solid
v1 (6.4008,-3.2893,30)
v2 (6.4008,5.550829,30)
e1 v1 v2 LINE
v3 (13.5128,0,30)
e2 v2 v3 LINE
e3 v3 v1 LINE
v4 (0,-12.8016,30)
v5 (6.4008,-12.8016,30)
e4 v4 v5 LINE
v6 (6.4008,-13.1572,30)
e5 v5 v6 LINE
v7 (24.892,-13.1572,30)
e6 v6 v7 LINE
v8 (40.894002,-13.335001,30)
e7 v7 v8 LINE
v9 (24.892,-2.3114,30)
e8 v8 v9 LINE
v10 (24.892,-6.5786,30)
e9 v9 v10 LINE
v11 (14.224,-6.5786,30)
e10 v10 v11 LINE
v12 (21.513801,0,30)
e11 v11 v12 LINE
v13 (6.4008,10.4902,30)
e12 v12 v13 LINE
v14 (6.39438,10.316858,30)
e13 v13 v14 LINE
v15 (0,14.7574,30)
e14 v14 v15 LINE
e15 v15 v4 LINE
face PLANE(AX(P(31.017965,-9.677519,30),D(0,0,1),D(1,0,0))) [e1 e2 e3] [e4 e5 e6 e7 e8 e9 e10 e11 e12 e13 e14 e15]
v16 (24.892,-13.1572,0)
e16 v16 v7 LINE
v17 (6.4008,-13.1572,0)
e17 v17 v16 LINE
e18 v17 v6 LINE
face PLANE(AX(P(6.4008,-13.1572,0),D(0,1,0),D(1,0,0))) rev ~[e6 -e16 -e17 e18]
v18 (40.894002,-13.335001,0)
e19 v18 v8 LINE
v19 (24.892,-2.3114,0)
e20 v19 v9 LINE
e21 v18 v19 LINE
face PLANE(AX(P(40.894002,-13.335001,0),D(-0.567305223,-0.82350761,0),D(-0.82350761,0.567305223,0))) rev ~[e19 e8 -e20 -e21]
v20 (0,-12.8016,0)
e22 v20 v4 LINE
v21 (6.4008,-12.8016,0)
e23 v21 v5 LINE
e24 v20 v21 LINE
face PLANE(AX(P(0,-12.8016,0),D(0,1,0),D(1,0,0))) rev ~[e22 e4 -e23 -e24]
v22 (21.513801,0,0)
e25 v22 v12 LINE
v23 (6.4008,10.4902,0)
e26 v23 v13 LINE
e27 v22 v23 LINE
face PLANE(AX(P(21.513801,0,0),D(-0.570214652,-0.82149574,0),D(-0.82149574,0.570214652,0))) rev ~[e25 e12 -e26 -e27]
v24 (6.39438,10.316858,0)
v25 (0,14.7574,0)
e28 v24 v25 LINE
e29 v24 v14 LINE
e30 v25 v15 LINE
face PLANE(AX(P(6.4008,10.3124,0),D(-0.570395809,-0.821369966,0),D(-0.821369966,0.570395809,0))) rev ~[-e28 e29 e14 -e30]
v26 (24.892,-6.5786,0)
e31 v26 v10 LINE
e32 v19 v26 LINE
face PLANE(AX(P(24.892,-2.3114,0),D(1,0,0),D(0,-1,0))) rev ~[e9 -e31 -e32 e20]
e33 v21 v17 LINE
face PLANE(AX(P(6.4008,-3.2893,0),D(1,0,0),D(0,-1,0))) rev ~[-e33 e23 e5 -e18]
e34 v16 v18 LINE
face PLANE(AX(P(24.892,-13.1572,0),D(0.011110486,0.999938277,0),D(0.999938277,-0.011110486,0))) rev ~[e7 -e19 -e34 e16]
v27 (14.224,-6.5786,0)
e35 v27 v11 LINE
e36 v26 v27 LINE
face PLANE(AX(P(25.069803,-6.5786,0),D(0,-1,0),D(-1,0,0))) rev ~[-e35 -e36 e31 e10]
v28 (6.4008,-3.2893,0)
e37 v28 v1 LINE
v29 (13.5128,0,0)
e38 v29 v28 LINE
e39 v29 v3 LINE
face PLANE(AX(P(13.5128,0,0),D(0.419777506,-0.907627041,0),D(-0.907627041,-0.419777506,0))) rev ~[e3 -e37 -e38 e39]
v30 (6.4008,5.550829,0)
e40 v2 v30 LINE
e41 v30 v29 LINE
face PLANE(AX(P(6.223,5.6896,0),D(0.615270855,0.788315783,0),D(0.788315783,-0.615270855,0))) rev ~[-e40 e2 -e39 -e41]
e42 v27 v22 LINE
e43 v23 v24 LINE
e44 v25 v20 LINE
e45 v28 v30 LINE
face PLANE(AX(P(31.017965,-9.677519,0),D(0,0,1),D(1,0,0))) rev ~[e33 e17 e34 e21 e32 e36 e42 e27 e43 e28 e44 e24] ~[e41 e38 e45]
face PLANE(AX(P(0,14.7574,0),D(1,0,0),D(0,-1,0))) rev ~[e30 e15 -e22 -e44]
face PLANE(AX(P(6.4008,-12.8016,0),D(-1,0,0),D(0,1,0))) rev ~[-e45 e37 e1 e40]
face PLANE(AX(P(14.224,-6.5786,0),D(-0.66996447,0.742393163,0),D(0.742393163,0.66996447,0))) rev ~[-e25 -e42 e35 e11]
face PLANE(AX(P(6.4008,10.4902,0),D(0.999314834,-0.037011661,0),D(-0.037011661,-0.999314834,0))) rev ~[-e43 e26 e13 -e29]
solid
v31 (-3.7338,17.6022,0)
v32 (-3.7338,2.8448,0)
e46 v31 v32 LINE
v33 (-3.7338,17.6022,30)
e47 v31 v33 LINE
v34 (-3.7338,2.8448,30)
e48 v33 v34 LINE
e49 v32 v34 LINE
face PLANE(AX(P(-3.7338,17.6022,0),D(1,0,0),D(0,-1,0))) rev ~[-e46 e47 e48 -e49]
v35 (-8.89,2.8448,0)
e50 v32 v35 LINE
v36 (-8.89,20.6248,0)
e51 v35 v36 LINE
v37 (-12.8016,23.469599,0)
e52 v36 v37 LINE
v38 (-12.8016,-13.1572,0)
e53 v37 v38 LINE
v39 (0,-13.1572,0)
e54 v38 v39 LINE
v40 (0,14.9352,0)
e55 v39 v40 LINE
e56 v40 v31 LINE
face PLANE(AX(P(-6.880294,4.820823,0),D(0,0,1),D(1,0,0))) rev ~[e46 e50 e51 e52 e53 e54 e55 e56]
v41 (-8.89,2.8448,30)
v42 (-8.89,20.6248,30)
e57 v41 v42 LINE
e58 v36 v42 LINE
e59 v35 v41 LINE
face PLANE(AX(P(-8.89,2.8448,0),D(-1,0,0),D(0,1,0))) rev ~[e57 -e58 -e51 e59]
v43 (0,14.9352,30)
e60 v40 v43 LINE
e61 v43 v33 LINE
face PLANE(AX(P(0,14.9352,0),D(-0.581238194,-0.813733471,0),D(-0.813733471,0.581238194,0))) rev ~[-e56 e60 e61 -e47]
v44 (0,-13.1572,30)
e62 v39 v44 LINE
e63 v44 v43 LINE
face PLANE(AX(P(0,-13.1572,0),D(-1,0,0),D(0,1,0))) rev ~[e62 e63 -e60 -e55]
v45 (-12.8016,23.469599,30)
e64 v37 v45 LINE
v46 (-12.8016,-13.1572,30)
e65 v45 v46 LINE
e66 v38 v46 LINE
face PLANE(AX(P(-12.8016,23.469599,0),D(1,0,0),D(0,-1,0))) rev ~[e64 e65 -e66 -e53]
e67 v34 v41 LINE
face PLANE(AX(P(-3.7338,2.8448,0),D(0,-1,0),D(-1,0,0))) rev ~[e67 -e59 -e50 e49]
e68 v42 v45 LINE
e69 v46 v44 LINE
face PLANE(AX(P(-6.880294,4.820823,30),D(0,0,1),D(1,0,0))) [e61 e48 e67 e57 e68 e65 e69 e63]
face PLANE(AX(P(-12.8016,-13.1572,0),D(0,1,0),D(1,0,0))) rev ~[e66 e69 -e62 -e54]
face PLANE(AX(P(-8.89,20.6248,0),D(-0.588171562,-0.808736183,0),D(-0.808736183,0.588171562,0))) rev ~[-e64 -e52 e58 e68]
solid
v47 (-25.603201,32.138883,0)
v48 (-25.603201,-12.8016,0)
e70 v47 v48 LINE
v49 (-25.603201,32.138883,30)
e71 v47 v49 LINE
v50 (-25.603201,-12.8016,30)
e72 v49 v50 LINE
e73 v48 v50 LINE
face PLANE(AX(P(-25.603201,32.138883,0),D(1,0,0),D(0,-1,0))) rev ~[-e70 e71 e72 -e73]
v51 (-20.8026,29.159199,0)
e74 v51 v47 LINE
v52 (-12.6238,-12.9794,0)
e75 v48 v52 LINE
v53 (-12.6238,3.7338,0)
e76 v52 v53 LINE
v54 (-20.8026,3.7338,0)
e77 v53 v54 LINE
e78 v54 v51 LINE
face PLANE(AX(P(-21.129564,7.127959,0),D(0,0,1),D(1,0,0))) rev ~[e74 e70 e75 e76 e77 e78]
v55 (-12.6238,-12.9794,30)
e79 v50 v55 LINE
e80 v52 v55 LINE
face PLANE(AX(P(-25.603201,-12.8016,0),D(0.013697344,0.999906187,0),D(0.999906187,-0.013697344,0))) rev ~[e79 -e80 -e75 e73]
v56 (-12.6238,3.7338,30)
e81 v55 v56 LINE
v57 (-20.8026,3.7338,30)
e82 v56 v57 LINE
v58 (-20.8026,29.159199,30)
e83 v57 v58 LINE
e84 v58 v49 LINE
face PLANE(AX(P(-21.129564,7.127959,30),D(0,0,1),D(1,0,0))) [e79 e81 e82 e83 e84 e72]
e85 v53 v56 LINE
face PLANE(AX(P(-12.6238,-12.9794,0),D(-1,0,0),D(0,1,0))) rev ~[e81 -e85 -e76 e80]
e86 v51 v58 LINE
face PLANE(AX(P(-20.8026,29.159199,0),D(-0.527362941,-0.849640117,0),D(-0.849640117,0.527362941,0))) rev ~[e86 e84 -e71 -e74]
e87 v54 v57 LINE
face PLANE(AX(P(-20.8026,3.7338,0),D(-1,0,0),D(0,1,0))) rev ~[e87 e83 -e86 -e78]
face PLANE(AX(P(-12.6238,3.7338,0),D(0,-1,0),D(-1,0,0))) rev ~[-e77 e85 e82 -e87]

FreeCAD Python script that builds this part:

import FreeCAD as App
import Part
import Sketcher

V = App.Vector
Q = App.Units.Quantity

doc = App.newDocument("Part")
body = doc.addObject("PartDesign::Body", "Body")

# Sketch on XY plane
sketch1 = body.newObject("Sketcher::SketchObject", "Sketch")
sketch1.AttachmentSupport = (doc.getObject("XY_Plane"), [""])
sketch1.MapMode = "FlatFace"
sketch1.addGeometry(Part.LineSegment(V(-21, 29, 0), V(-26, 32, 0)), False)
sketch1.addGeometry(Part.LineSegment(V(-26, 32, 0), V(-26, -13, 0)), False)
sketch1.addGeometry(Part.LineSegment(V(-26, -13, 0), V(-13, -13, 0)), False)
sketch1.addGeometry(Part.LineSegment(V(-13, -13, 0), V(-13, 4, 0)), False)
sketch1.addGeometry(Part.LineSegment(V(-13, 4, 0), V(-21, 4, 0)), False)
sketch1.addGeometry(Part.LineSegment(V(-21, 4, 0), V(-21, 29, 0)), False)
sketch1.addConstraint(Sketcher.Constraint("Coincident", 0, 2, 1, 1))
sketch1.addConstraint(Sketcher.Constraint("Coincident", 1, 2, 2, 1))
sketch1.addConstraint(Sketcher.Constraint("Coincident", 2, 2, 3, 1))
sketch1.addConstraint(Sketcher.Constraint("Coincident", 3, 2, 4, 1))
sketch1.addConstraint(Sketcher.Constraint("Coincident", 4, 2, 5, 1))
sketch1.addConstraint(Sketcher.Constraint("Coincident", 5, 2, 0, 1))
sketch1.addConstraint(Sketcher.Constraint("Vertical", 1))
sketch1.addConstraint(Sketcher.Constraint("Vertical", 3))
sketch1.addConstraint(Sketcher.Constraint("Horizontal", 4))
sketch1.addConstraint(Sketcher.Constraint("Vertical", 5))
sketch1.addConstraint(Sketcher.Constraint("DistanceX", 4, 2, 4, 1, Q("0.322 in")))
sketch1.addConstraint(Sketcher.Constraint("DistanceY", 3, 1, 3, 2, Q("0.658 in")))
sketch1.addConstraint(Sketcher.Constraint("DistanceY", 5, 1, 5, 2, Q("1.001 in")))
sketch1.addConstraint(Sketcher.Constraint("DistanceX", 0, 2, -1, 1, Q("1.008 in")))
sketch1.addConstraint(Sketcher.Constraint("DistanceY", 1, 2, -1, 1, Q("0.504 in")))
sketch1.addConstraint(Sketcher.Constraint("DistanceX", 2, 2, -1, 1, Q("0.497 in")))
sketch1.addConstraint(Sketcher.Constraint("DistanceY", 2, 2, -1, 1, Q("0.511 in")))
sketch1.addConstraint(Sketcher.Constraint("Distance", 0, 5.650158))
pad1 = body.newObject("PartDesign::Pad", "Pad")
pad1.Profile = sketch1
pad1.Length = 30
body2 = doc.addObject("PartDesign::Body", "Body001")

# Sketch on XY plane
sketch2 = body2.newObject("Sketcher::SketchObject", "Sketch001")
sketch2.AttachmentSupport = (doc.getObject("XY_Plane001"), [""])
sketch2.MapMode = "FlatFace"
sketch2.addGeometry(Part.LineSegment(V(6, 10, 0), V(0, 15, 0)), False)
sketch2.addGeometry(Part.LineSegment(V(0, 15, 0), V(0, -13, 0)), False)
sketch2.addGeometry(Part.LineSegment(V(0, -13, 0), V(6, -13, 0)), False)
sketch2.addGeometry(Part.LineSegment(V(6, -13, 0), V(6, 10, 0)), False)
sketch2.addConstraint(Sketcher.Constraint("Coincident", 0, 2, 1, 1))
sketch2.addConstraint(Sketcher.Constraint("Coincident", 1, 2, 2, 1))
sketch2.addConstraint(Sketcher.Constraint("Coincident", 2, 2, 3, 1))
sketch2.addConstraint(Sketcher.Constraint("Coincident", 3, 2, 0, 1))
sketch2.addConstraint(Sketcher.Constraint("Vertical", 1))
sketch2.addConstraint(Sketcher.Constraint("Horizontal", 2))
sketch2.addConstraint(Sketcher.Constraint("Vertical", 3))
sketch2.addConstraint(Sketcher.Constraint("PointOnObject", 0, 2, -2))
sketch2.addConstraint(Sketcher.Constraint("DistanceY", 3, 1, 3, 2, Q("0.91 in")))
sketch2.addConstraint(Sketcher.Constraint("DistanceX", 2, 1, 2, 2, Q("0.252 in")))
sketch2.addConstraint(Sketcher.Constraint("DistanceY", 1, 2, 1, 1, Q("1.085 in")))
sketch2.addConstraint(Sketcher.Constraint("DistanceY", -1, 1, 0, 2, Q("0.581 in")))
pad2 = body2.newObject("PartDesign::Pad", "Pad001")
pad2.Profile = sketch2
pad2.Length = 30

# Sketch on XY plane
sketch3 = body2.newObject("Sketcher::SketchObject", "Sketch002")
sketch3.AttachmentSupport = (doc.getObject("XY_Plane001"), [""])
sketch3.MapMode = "FlatFace"
sketch3.addGeometry(Part.LineSegment(V(21.5, 0, 0), V(6.4, 10.5, 0)), False)
sketch3.addGeometry(Part.LineSegment(V(6.4, 10.5, 0), V(6.2, 5.7, 0)), False)
sketch3.addGeometry(Part.LineSegment(V(6.2, 5.7, 0), V(13.5, 0, 0)), False)
sketch3.addGeometry(Part.LineSegment(V(13.5, 0, 0), V(6.4, -3.3, 0)), False)
sketch3.addGeometry(Part.LineSegment(V(6.4, -3.3, 0), V(6.4, -13.2, 0)), False)
sketch3.addGeometry(Part.LineSegment(V(6.4, -13.2, 0), V(25.1, -13.2, 0)), False)
sketch3.addGeometry(Part.LineSegment(V(25.1, -13.2, 0), V(25.1, -6.6, 0)), False)
sketch3.addGeometry(Part.LineSegment(V(25.1, -6.6, 0), V(14.2, -6.6, 0)), False)
sketch3.addGeometry(Part.LineSegment(V(14.2, -6.6, 0), V(21.5, 0, 0)), False)
sketch3.addConstraint(Sketcher.Constraint("Coincident", 0, 2, 1, 1))
sketch3.addConstraint(Sketcher.Constraint("Coincident", 1, 2, 2, 1))
sketch3.addConstraint(Sketcher.Constraint("Coincident", 2, 2, 3, 1))
sketch3.addConstraint(Sketcher.Constraint("Coincident", 3, 2, 4, 1))
sketch3.addConstraint(Sketcher.Constraint("Coincident", 4, 2, 5, 1))
sketch3.addConstraint(Sketcher.Constraint("Coincident", 5, 2, 6, 1))
sketch3.addConstraint(Sketcher.Constraint("Coincident", 6, 2, 7, 1))
sketch3.addConstraint(Sketcher.Constraint("Coincident", 7, 2, 8, 1))
sketch3.addConstraint(Sketcher.Constraint("Coincident", 8, 2, 0, 1))
sketch3.addConstraint(Sketcher.Constraint("Vertical", 4))
sketch3.addConstraint(Sketcher.Constraint("Horizontal", 5))
sketch3.addConstraint(Sketcher.Constraint("Vertical", 6))
sketch3.addConstraint(Sketcher.Constraint("Horizontal", 7))
sketch3.addConstraint(Sketcher.Constraint("PointOnObject", 2, 2, -1))
sketch3.addConstraint(Sketcher.Constraint("PointOnObject", 8, 2, -1))
sketch3.addConstraint(Sketcher.Constraint("Vertical", 0, 2, 3, 2))
sketch3.addConstraint(Sketcher.Constraint("DistanceX", 5, 1, 5, 2, Q("0.7350001 in")))
sketch3.addConstraint(Sketcher.Constraint("DistanceX", 7, 2, 7, 1, Q("0.4270001 in")))
sketch3.addConstraint(Sketcher.Constraint("DistanceY", 6, 1, 6, 2, Q("0.259 in")))
sketch3.addConstraint(Sketcher.Constraint("DistanceX", -1, 1, 7, 2, Q("0.56 in")))
sketch3.addConstraint(Sketcher.Constraint("DistanceX", 0, 2, 2, 2, Q("0.28 in")))
sketch3.addConstraint(Sketcher.Constraint("DistanceX", 8, 2, 6, 2, Q("0.1400001 in")))
sketch3.addConstraint(Sketcher.Constraint("DistanceY", 4, 2, 4, 1, Q("0.3885 in")))
sketch3.addConstraint(Sketcher.Constraint("DistanceY", -1, 1, 0, 2, Q("0.413 in")))
sketch3.addConstraint(Sketcher.Constraint("DistanceX", -1, 1, 1, 2, Q("0.245 in")))
sketch3.addConstraint(Sketcher.Constraint("DistanceY", -1, 1, 1, 2, Q("0.224 in")))
sketch3.addConstraint(Sketcher.Constraint("DistanceY", 4, 2, -1, 1, Q("0.518 in")))
pad3 = body2.newObject("PartDesign::Pad", "Pad002")
pad3.Profile = sketch3
pad3.Length = 30

# Sketch on XY plane
sketch4 = body2.newObject("Sketcher::SketchObject", "Sketch003")
sketch4.AttachmentSupport = (doc.getObject("XY_Plane001"), [""])
sketch4.MapMode = "FlatFace"
sketch4.addGeometry(Part.LineSegment(V(25, -2, 0), V(25, -13, 0)), False)
sketch4.addGeometry(Part.LineSegment(V(25, -13, 0), V(41, -13, 0)), False)
sketch4.addGeometry(Part.LineSegment(V(41, -13, 0), V(25, -2, 0)), False)
sketch4.addConstraint(Sketcher.Constraint("Coincident", 0, 2, 1, 1))
sketch4.addConstraint(Sketcher.Constraint("Coincident", 1, 2, 2, 1))
sketch4.addConstraint(Sketcher.Constraint("Coincident", 2, 2, 0, 1))
sketch4.addConstraint(Sketcher.Constraint("Vertical", 0))
sketch4.addConstraint(Sketcher.Constraint("DistanceY", 0, 2, 0, 1, Q("0.427 in")))
sketch4.addConstraint(Sketcher.Constraint("DistanceX", -1, 1, 0, 2, Q("0.98 in")))
sketch4.addConstraint(Sketcher.Constraint("DistanceX", -1, 1, 1, 2, Q("1.6100001 in")))
sketch4.addConstraint(Sketcher.Constraint("DistanceY", 0, 2, -1, 1, Q("0.518 in")))
sketch4.addConstraint(Sketcher.Constraint("DistanceY", 1, 2, -1, 1, Q("0.525 in")))
pad4 = body2.newObject("PartDesign::Pad", "Pad003")
pad4.Profile = sketch4
pad4.Length = 30
body3 = doc.addObject("PartDesign::Body", "Body002")

# Sketch on XY plane
sketch5 = body3.newObject("Sketcher::SketchObject", "Sketch004")
sketch5.AttachmentSupport = (doc.getObject("XY_Plane002"), [""])
sketch5.MapMode = "FlatFace"
sketch5.addGeometry(Part.LineSegment(V(-12.8, 23.5, 0), V(-12.8, -13.2, 0)), False)
sketch5.addGeometry(Part.LineSegment(V(-12.8, -13.2, 0), V(0, -13.2, 0)), False)
sketch5.addGeometry(Part.LineSegment(V(0, -13.2, 0), V(0, 14.9, 0)), False)
sketch5.addGeometry(Part.LineSegment(V(0, 14.9, 0), V(-3.7, 17.6, 0)), False)
sketch5.addGeometry(Part.LineSegment(V(-3.7, 17.6, 0), V(-3.7, 2.8, 0)), False)
sketch5.addGeometry(Part.LineSegment(V(-3.7, 2.8, 0), V(-8.9, 2.8, 0)), False)
sketch5.addGeometry(Part.LineSegment(V(-8.9, 2.8, 0), V(-8.9, 20.6, 0)), False)
sketch5.addGeometry(Part.LineSegment(V(-8.9, 20.6, 0), V(-12.8, 23.5, 0)), False)
sketch5.addConstraint(Sketcher.Constraint("Coincident", 0, 2, 1, 1))
sketch5.addConstraint(Sketcher.Constraint("Coincident", 1, 2, 2, 1))
sketch5.addConstraint(Sketcher.Constraint("Coincident", 2, 2, 3, 1))
sketch5.addConstraint(Sketcher.Constraint("Coincident", 3, 2, 4, 1))
sketch5.addConstraint(Sketcher.Constraint("Coincident", 4, 2, 5, 1))
sketch5.addConstraint(Sketcher.Constraint("Coincident", 5, 2, 6, 1))
sketch5.addConstraint(Sketcher.Constraint("Coincident", 6, 2, 7, 1))
sketch5.addConstraint(Sketcher.Constraint("Coincident", 7, 2, 0, 1))
sketch5.addConstraint(Sketcher.Constraint("Vertical", 0))
sketch5.addConstraint(Sketcher.Constraint("Horizontal", 1))
sketch5.addConstraint(Sketcher.Constraint("Vertical", 2))
sketch5.addConstraint(Sketcher.Constraint("Vertical", 4))
sketch5.addConstraint(Sketcher.Constraint("Horizontal", 5))
sketch5.addConstraint(Sketcher.Constraint("Vertical", 6))
sketch5.addConstraint(Sketcher.Constraint("PointOnObject", 1, 2, -2))
sketch5.addConstraint(Sketcher.Constraint("DistanceY", 6, 1, 6, 2, Q("0.7 in")))
sketch5.addConstraint(Sketcher.Constraint("DistanceX", 1, 1, 1, 2, Q("0.504 in")))
sketch5.addConstraint(Sketcher.Constraint("DistanceX", 5, 2, 5, 1, Q("0.203 in")))
sketch5.addConstraint(Sketcher.Constraint("DistanceY", 0, 2, 0, 1, Q("1.442 in")))
sketch5.addConstraint(Sketcher.Constraint("DistanceY", 2, 1, 2, 2, Q("1.106 in")))
sketch5.addConstraint(Sketcher.Constraint("DistanceY", 4, 2, 4, 1, Q("0.581 in")))
sketch5.addConstraint(Sketcher.Constraint("DistanceX", 5, 2, -1, 1, Q("0.35 in")))
sketch5.addConstraint(Sketcher.Constraint("DistanceY", 1, 2, 4, 2, Q("0.63 in")))
sketch5.addConstraint(Sketcher.Constraint("DistanceY", 0, 2, -1, 1, Q("0.518 in")))
pad5 = body3.newObject("PartDesign::Pad", "Pad004")
pad5.Profile = sketch5
pad5.Length = 30

doc.recompute()
